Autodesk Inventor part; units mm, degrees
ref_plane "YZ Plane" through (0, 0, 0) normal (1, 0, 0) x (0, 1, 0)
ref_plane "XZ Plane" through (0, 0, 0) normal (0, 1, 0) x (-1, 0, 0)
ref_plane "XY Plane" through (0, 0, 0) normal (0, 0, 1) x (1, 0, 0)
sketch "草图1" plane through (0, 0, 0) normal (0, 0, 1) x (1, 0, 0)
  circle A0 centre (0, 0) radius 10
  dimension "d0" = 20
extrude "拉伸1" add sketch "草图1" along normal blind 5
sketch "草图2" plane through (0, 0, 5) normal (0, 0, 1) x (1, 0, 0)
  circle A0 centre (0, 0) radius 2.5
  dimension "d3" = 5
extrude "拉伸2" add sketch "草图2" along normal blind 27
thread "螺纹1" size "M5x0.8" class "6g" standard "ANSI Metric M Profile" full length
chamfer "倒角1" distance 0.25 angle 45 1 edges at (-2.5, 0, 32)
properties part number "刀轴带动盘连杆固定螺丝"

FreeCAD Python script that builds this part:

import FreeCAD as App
import Part
import Sketcher

V = App.Vector
Q = App.Units.Quantity


def edges_at(feature, points):
    """Names of the edges that pass closest to the given points."""
    edges = feature.Shape.Edges
    near = lambda p: min(range(len(edges)), key=lambda i: edges[i].distToShape(Part.Vertex(*p))[0])
    return sorted({f"Edge{near(p) + 1}" for p in points})

doc = App.newDocument("Part")
body = doc.addObject("PartDesign::Body", "Body")

# Sketch on XY plane
sketch1 = body.newObject("Sketcher::SketchObject", "Sketch")
sketch1.AttachmentSupport = (doc.getObject("XY_Plane"), [""])
sketch1.MapMode = "FlatFace"
sketch1.addGeometry(Part.Circle(V(0, 0, 0), V(0, 0, 1), 10), False)
sketch1.addConstraint([
    Sketcher.Constraint("Coincident", 0, 3, -1, 1),
    Sketcher.Constraint("Diameter", 0, Q("20 mm")),
])
pad1 = body.newObject("PartDesign::Pad", "Pad")
pad1.Profile = sketch1
pad1.Length = 5

# Sketch on XY plane
sketch2 = body.newObject("Sketcher::SketchObject", "Sketch001")
sketch2.AttachmentSupport = (doc.getObject("XY_Plane"), [""])
sketch2.MapMode = "FlatFace"
sketch2.AttachmentOffset = App.Placement(V(0, 0, 5), App.Rotation())
sketch2.addGeometry(Part.Circle(V(0, 0, 0), V(0, 0, 1), 2.5), False)
sketch2.addConstraint([
    Sketcher.Constraint("Coincident", 0, 3, -1, 1),
    Sketcher.Constraint("Diameter", 0, Q("5 mm")),
])
pad2 = body.newObject("PartDesign::Pad", "Pad001")
pad2.Profile = sketch2
pad2.Length = 27
doc.recompute()

chamfer = body.newObject("PartDesign::Chamfer", "Chamfer")
chamfer.Base = (pad2, edges_at(pad2, [(-2.5, 0, 32)]))
chamfer.Size = 0.25

doc.recompute()
